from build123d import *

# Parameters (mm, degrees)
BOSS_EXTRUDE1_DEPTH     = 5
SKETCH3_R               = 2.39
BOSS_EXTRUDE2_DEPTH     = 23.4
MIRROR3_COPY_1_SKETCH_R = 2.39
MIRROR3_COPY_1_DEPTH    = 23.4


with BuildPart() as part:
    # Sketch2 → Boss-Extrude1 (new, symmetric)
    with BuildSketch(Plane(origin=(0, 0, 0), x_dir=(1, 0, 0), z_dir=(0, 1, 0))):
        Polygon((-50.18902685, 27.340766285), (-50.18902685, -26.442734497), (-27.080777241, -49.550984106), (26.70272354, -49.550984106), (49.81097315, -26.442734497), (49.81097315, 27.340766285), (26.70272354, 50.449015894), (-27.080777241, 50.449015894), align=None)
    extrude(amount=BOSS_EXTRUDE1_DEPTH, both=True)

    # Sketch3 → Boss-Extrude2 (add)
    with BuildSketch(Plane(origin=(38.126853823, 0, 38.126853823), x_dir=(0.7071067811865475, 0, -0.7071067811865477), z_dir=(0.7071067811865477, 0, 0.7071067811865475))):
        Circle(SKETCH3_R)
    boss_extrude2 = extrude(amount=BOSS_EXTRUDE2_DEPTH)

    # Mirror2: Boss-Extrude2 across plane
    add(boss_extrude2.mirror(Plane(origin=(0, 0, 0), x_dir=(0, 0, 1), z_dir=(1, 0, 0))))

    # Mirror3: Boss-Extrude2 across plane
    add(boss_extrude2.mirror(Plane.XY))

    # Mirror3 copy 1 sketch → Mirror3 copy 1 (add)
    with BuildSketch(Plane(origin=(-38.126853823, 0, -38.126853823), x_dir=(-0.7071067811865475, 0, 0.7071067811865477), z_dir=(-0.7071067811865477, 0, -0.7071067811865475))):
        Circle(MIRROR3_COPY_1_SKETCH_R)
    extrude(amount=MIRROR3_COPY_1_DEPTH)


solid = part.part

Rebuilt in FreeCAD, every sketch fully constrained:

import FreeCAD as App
import Part
import Sketcher

V = App.Vector
Q = App.Units.Quantity

doc = App.newDocument("Part")
params = doc.addObject("Spreadsheet::Sheet", "Params")
for row, (alias, value) in enumerate([
    ("sketch1_length", "32.68 mm"),
    ("pad1_length", "10 mm"),
    ("sketch2_diameter", "4.78 mm"),
    ("pad2_length", "23.4 mm"),
    ("sketch3_diameter", "4.78 mm"),
    ("pad3_length", "23.4 mm"),
], start=1):
    params.set(f"A{row}", alias)
    params.set(f"B{row}", "=" + value)
    params.setAlias(f"B{row}", alias)

body = doc.addObject("PartDesign::Body", "Body")

# Sketch on XZ plane
sketch1 = doc.addObject("Sketcher::SketchObject", "Sketch")
body.addObject(sketch1)
sketch1.AttachmentSupport = (doc.XZ_Plane, [""])
sketch1.MapMode = "FlatFace"
sketch1.addGeometry(Part.LineSegment(V(-50, -27, 0), V(-50, 26, 0)), False)
sketch1.addGeometry(Part.LineSegment(V(-50, 26, 0), V(-27, 50, 0)), False)
sketch1.addGeometry(Part.LineSegment(V(-27, 50, 0), V(27, 50, 0)), False)
sketch1.addGeometry(Part.LineSegment(V(27, 50, 0), V(50, 26, 0)), False)
sketch1.addGeometry(Part.LineSegment(V(50, 26, 0), V(50, -27, 0)), False)
sketch1.addGeometry(Part.LineSegment(V(50, -27, 0), V(27, -50, 0)), False)
sketch1.addGeometry(Part.LineSegment(V(27, -50, 0), V(-27, -50, 0)), False)
sketch1.addGeometry(Part.LineSegment(V(-27, -50, 0), V(-50, -27, 0)), False)
sketch1.addConstraint(Sketcher.Constraint("Coincident", 0, 2, 1, 1))
sketch1.addConstraint(Sketcher.Constraint("Coincident", 1, 2, 2, 1))
sketch1.addConstraint(Sketcher.Constraint("Coincident", 2, 2, 3, 1))
sketch1.addConstraint(Sketcher.Constraint("Coincident", 3, 2, 4, 1))
sketch1.addConstraint(Sketcher.Constraint("Coincident", 4, 2, 5, 1))
sketch1.addConstraint(Sketcher.Constraint("Coincident", 5, 2, 6, 1))
sketch1.addConstraint(Sketcher.Constraint("Coincident", 6, 2, 7, 1))
sketch1.addConstraint(Sketcher.Constraint("Coincident", 7, 2, 0, 1))
sketch1.addConstraint(Sketcher.Constraint("Vertical", 0))
sketch1.addConstraint(Sketcher.Constraint("Horizontal", 2))
sketch1.addConstraint(Sketcher.Constraint("Vertical", 4))
sketch1.addConstraint(Sketcher.Constraint("Horizontal", 6))
sketch1.addConstraint(Sketcher.Constraint("Perpendicular", 1, 3))
sketch1.addConstraint(Sketcher.Constraint("Perpendicular", 3, 5))
sketch1.addConstraint(Sketcher.Constraint("Perpendicular", 5, 7))
sketch1.addConstraint(Sketcher.Constraint("Horizontal", 0, 2, 3, 2))
sketch1.addConstraint(Sketcher.Constraint("Horizontal", 4, 2, 7, 2))
sketch1.addConstraint(Sketcher.Constraint("Vertical", 2, 2, 5, 2))
sketch1.addConstraint(Sketcher.Constraint("Vertical", 1, 2, 6, 2))
sketch1.addConstraint(Sketcher.Constraint("Equal", 6, 0))
sketch1.addConstraint(Sketcher.Constraint("DistanceX", 0, 2, 3, 2, Q("100 mm")))
sketch1.addConstraint(Sketcher.Constraint("Distance", 1, Q("32.68 mm")))
sketch1.addConstraint(Sketcher.Constraint("DistanceX", 0, 2, -1, 1, Q("50.189027 mm")))
sketch1.addConstraint(Sketcher.Constraint("DistanceY", -1, 1, 0, 2, Q("26.442734 mm")))
sketch1.setExpression("Constraints[21]", "Params.sketch1_length")
pad1 = doc.addObject("PartDesign::Pad", "Pad")
body.addObject(pad1)
pad1.Profile = sketch1
pad1.setExpression("Length", "Params.pad1_length")
pad1.Midplane = True

# Sketch on an angled plane
sketch2 = doc.addObject("Sketcher::SketchObject", "Sketch001")
body.addObject(sketch2)
sketch2.Placement = App.Placement(V(38.126854, 0, 38.126854), App.Rotation(V(0.707106781, 0, -0.707106781), V(0, 0.999999999, 0), V(0.707106781, 0, 0.707106781), "ZXY"))
sketch2.addGeometry(Part.Circle(V(0, 0, 0), V(0, 0, 1), 2.4), False)
sketch2.addConstraint(Sketcher.Constraint("Coincident", 0, 3, -1, 1))
sketch2.addConstraint(Sketcher.Constraint("Diameter", 0, Q("4.78 mm")))
sketch2.setExpression("Constraints[1]", "Params.sketch2_diameter")
pad2 = doc.addObject("PartDesign::Pad", "Pad001")
body.addObject(pad2)
pad2.Profile = sketch2
pad2.setExpression("Length", "Params.pad2_length")
doc.recompute()

mirrored = doc.addObject("PartDesign::Mirrored", "Mirrored")
body.addObject(mirrored)
mirrored.Originals = [pad2]
mirrored.MirrorPlane = (doc.YZ_Plane, [""])
body.Tip = mirrored
doc.recompute()

mirrored2 = doc.addObject("PartDesign::Mirrored", "Mirrored001")
body.addObject(mirrored2)
mirrored2.Originals = [pad2]
mirrored2.MirrorPlane = (doc.XY_Plane, [""])
body.Tip = mirrored2

# Sketch on an angled plane
sketch3 = doc.addObject("Sketcher::SketchObject", "Sketch002")
body.addObject(sketch3)
sketch3.Placement = App.Placement(V(-38.126854, 0, -38.126854), App.Rotation(V(-0.707106781, 0, 0.707106781), V(0, 0.999999999, 0), V(-0.707106781, 0, -0.707106781), "ZXY"))
sketch3.addGeometry(Part.Circle(V(0, 0, 0), V(0, 0, 1), 2.4), False)
sketch3.addConstraint(Sketcher.Constraint("Coincident", 0, 3, -1, 1))
sketch3.addConstraint(Sketcher.Constraint("Diameter", 0, Q("4.78 mm")))
sketch3.setExpression("Constraints[1]", "Params.sketch3_diameter")
pad3 = doc.addObject("PartDesign::Pad", "Pad002")
body.addObject(pad3)
pad3.Profile = sketch3
pad3.setExpression("Length", "Params.pad3_length")

doc.recompute()
